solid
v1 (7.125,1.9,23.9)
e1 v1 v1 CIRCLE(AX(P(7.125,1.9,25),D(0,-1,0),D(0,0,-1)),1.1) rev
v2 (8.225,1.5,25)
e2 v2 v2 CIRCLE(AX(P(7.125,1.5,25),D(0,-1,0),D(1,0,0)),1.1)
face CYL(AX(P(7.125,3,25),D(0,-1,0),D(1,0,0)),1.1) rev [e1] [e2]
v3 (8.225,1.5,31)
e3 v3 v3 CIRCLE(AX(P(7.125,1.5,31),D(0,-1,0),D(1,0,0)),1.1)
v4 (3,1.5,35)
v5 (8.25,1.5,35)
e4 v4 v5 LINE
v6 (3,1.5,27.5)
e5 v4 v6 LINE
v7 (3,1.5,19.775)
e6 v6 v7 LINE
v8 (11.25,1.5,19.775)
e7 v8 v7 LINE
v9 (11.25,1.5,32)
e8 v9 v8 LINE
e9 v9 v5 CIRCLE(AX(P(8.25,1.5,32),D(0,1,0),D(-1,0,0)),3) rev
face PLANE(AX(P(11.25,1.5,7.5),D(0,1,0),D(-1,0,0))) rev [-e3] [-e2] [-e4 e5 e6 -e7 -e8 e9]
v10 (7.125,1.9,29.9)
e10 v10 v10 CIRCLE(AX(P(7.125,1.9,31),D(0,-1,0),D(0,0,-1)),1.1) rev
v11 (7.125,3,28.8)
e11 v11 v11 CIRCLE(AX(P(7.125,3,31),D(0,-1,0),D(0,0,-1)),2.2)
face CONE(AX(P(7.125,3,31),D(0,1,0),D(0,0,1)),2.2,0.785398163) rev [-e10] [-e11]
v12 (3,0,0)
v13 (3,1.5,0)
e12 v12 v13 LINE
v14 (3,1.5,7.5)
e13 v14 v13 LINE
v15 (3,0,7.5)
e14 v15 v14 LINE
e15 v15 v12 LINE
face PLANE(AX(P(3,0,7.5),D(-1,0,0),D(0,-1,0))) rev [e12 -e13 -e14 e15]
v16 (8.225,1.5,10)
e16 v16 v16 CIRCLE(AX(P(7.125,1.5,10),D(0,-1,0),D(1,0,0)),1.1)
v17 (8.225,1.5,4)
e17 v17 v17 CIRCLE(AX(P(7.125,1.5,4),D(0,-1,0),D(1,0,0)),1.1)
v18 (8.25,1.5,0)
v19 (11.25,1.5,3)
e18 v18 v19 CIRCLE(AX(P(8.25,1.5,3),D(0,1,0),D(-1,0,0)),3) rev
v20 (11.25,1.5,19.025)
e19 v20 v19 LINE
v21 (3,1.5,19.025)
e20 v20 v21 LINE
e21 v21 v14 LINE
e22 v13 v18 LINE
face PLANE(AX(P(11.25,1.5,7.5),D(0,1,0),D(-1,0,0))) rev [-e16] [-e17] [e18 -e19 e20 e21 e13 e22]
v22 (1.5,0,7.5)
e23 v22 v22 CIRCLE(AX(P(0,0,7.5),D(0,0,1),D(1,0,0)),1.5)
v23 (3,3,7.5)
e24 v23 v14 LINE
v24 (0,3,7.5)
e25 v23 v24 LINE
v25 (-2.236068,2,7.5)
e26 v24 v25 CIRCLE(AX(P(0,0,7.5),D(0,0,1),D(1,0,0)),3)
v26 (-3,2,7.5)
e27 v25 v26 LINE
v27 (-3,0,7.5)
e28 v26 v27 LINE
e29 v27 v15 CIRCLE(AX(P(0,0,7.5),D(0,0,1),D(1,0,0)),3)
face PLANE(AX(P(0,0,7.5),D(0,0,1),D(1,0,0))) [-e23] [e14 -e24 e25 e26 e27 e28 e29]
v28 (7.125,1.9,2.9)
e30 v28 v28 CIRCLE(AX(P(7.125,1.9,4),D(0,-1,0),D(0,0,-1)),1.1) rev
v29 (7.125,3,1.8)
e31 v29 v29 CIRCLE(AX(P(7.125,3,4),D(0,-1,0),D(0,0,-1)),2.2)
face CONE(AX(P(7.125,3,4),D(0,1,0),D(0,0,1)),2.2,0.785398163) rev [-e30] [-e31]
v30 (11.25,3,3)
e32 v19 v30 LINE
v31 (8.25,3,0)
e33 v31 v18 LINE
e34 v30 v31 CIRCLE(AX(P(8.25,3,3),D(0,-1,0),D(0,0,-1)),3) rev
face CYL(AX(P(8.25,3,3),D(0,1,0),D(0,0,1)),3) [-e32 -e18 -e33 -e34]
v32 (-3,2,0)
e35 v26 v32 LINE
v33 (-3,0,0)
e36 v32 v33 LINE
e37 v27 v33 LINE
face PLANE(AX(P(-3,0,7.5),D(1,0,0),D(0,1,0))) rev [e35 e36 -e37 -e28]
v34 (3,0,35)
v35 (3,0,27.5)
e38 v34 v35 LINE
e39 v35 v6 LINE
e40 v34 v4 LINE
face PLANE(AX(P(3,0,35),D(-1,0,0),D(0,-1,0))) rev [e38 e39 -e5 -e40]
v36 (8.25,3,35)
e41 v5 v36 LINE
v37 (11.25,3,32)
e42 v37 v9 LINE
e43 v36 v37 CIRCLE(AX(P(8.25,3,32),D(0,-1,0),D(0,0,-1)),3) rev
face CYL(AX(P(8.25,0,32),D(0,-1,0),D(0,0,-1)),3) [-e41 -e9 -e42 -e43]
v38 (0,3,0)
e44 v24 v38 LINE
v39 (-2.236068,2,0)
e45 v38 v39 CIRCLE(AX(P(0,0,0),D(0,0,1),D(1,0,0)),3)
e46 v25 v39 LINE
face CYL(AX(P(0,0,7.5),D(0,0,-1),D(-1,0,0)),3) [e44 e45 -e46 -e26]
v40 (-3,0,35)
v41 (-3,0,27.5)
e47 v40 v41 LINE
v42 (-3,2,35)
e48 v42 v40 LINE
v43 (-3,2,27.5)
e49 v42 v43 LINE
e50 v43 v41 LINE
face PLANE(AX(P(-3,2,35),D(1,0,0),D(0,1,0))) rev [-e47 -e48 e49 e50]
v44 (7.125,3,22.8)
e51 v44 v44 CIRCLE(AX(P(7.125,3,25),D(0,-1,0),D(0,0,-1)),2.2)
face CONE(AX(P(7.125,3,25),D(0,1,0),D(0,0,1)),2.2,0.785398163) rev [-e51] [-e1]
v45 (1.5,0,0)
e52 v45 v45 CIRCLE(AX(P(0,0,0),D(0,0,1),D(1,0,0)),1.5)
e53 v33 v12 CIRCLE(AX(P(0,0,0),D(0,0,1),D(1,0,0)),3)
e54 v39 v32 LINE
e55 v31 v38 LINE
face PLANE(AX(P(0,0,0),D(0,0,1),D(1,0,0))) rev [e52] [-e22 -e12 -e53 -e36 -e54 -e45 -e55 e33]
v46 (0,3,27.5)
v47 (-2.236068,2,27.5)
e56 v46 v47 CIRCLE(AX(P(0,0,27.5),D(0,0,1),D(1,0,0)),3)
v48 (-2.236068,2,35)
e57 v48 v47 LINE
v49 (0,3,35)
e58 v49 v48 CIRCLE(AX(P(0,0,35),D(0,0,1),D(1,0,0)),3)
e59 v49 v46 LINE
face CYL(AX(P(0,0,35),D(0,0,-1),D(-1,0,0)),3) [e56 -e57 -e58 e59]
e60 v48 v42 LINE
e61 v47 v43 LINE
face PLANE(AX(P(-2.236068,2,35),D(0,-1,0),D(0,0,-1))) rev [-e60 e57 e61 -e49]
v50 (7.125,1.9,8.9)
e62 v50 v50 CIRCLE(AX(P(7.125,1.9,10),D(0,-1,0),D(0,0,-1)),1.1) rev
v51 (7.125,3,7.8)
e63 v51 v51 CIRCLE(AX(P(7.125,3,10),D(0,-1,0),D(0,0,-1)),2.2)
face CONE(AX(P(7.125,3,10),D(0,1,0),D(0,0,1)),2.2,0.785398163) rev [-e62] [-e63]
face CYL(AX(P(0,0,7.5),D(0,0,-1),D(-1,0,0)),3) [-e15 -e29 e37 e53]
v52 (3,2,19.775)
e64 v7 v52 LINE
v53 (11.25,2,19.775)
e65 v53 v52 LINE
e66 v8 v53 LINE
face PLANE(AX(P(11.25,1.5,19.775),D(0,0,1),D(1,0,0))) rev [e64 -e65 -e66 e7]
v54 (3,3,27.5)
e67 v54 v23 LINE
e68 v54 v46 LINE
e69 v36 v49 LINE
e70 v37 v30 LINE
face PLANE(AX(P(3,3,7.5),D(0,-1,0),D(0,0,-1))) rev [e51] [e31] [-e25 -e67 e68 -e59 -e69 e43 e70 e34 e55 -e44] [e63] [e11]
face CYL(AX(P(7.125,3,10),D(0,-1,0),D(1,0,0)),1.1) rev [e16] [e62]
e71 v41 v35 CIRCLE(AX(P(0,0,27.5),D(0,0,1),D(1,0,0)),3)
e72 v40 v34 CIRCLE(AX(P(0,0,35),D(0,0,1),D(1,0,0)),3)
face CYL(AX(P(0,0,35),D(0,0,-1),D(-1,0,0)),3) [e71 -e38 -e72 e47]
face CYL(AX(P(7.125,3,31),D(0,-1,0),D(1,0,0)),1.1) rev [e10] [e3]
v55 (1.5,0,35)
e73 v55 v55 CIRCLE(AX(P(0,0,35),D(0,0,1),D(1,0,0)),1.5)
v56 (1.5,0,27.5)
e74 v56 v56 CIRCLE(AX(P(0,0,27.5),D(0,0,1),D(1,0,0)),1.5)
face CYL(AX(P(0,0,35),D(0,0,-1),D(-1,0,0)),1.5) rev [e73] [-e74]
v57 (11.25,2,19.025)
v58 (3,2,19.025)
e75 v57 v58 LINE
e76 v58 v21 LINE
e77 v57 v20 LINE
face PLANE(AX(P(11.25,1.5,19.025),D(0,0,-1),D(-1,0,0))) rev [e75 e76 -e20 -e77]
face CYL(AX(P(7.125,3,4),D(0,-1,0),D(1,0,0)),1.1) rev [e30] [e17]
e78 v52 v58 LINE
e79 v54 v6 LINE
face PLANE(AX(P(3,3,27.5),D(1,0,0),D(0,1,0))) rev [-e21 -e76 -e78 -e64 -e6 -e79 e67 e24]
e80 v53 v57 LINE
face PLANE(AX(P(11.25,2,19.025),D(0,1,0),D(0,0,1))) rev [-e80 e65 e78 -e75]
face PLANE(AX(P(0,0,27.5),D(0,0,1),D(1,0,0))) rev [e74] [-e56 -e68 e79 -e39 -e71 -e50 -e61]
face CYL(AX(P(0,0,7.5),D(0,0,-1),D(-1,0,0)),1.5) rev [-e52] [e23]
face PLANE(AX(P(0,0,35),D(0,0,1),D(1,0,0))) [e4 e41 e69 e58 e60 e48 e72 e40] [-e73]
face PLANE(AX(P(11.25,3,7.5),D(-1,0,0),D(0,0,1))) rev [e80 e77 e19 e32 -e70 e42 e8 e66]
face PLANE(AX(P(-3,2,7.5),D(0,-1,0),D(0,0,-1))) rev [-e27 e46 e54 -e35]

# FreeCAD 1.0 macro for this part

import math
import FreeCAD as App
import Part
import Sketcher


def edges_at(feature, points):
    """Names of the edges that pass closest to the given points."""
    edges = feature.Shape.Edges
    near = lambda p: min(range(len(edges)), key=lambda i: edges[i].distToShape(Part.Vertex(*p))[0])
    return sorted({f"Edge{near(p) + 1}" for p in points})


def add_polygon(sketch, points):
    """Adds a closed chain of lines whose ends are joined by coincident constraints."""
    first, n = sketch.GeometryCount, len(points)
    for a, b in zip(points, points[1:] + points[:1]):
        sketch.addGeometry(Part.LineSegment(App.Vector(*a, 0), App.Vector(*b, 0)), False)
    for i in range(n):
        sketch.addConstraint(Sketcher.Constraint("Coincident", first + i, 2, first + (i + 1) % n, 1))

doc = App.newDocument("Part")
body = doc.addObject("PartDesign::Body", "Body")

# Sketch on XY plane
sketch1 = body.newObject("Sketcher::SketchObject", "Sketch")
sketch1.AttachmentSupport = (doc.getObject("XY_Plane"), [""])
sketch1.MapMode = "FlatFace"
sketch1.addGeometry([
    Part.LineSegment(App.Vector(11.2, 1.5, 0), App.Vector(11.2, 3, 0)),  # 0
    Part.LineSegment(App.Vector(11.2, 3, 0), App.Vector(0, 3, 0)),  # 1
    Part.ArcOfCircle(Part.Circle(App.Vector(0, 0, 0), App.Vector(0, 0, 1), 3), math.radians(90), math.radians(138)),  # 2
    Part.LineSegment(App.Vector(-2.2, 2, 0), App.Vector(-3, 2, 0)),  # 3
    Part.LineSegment(App.Vector(-3, 2, 0), App.Vector(-3, 0, 0)),  # 4
    Part.ArcOfCircle(Part.Circle(App.Vector(0, 0, 0), App.Vector(0, 0, 1), 3), math.radians(180), math.radians(360)),  # 5
    Part.LineSegment(App.Vector(3, 0, 0), App.Vector(3, 1.5, 0)),  # 6
    Part.LineSegment(App.Vector(3, 1.5, 0), App.Vector(11.2, 1.5, 0)),  # 7
    Part.Circle(App.Vector(0, 0, 0), App.Vector(0, 0, 1), 1.5),  # 8
], False)
sketch1.addConstraint([
    Sketcher.Constraint("Coincident", 0, 2, 1, 1),
    Sketcher.Constraint("Tangent", 1, 2, 2, 1),
    Sketcher.Constraint("Coincident", 2, 2, 3, 1),
    Sketcher.Constraint("Coincident", 3, 2, 4, 1),
    Sketcher.Constraint("Tangent", 4, 2, 5, 1),
    Sketcher.Constraint("Tangent", 5, 2, 6, 1),
    Sketcher.Constraint("Coincident", 6, 2, 7, 1),
    Sketcher.Constraint("Coincident", 7, 2, 0, 1),
    Sketcher.Constraint("Vertical", 0),
    Sketcher.Constraint("Horizontal", 1),
    Sketcher.Constraint("Horizontal", 3),
    Sketcher.Constraint("Vertical", 4),
    Sketcher.Constraint("Vertical", 6),
    Sketcher.Constraint("Horizontal", 7),
    Sketcher.Constraint("Coincident", 2, 3, -1, 1),
    Sketcher.Constraint("Coincident", 5, 3, -1, 1),
    Sketcher.Constraint("Coincident", 8, 3, -1, 1),
    Sketcher.Constraint("Equal", 2, 5),
    Sketcher.Constraint("Equal", 0, 6),
    Sketcher.Constraint("Diameter", 8, 3.0),
    Sketcher.Constraint("Radius", 2, 3.0),
    Sketcher.Constraint("DistanceY", 4, 2, 4, 1, 2.0),
    Sketcher.Constraint("DistanceX", 1, 2, 1, 1, 11.25),
])
pad1 = body.newObject("PartDesign::Pad", "Pad")
pad1.Profile = sketch1
pad1.Length = 7.5

# Sketch on XY plane
sketch2 = body.newObject("Sketcher::SketchObject", "Sketch001")
sketch2.AttachmentSupport = (doc.getObject("XY_Plane"), [""])
sketch2.MapMode = "FlatFace"
sketch2.AttachmentOffset = App.Placement(App.Vector(0, 0, 7.5), App.Rotation())
add_polygon(sketch2, [(3, 3), (3, 1.5), (11.2, 1.5), (11.2, 3)])  # lines 0-3
sketch2.addConstraint([
    Sketcher.Constraint("Vertical", 0),
    Sketcher.Constraint("Horizontal", 1),
    Sketcher.Constraint("Vertical", 2),
    Sketcher.Constraint("Horizontal", 3),
    Sketcher.Constraint("DistanceY", 0, 2, 0, 1, 1.5),
    Sketcher.Constraint("DistanceX", -1, 1, 0, 2, 3.0),
    Sketcher.Constraint("DistanceY", -1, 1, 2, 2, 3.0),
    Sketcher.Constraint("DistanceX", 1, 1, 1, 2, 8.25),
])
pad2 = body.newObject("PartDesign::Pad", "Pad001")
pad2.Profile = sketch2
pad2.Length = 20

# Sketch on XY plane
sketch3 = body.newObject("Sketcher::SketchObject", "Sketch002")
sketch3.AttachmentSupport = (doc.getObject("XY_Plane"), [""])
sketch3.MapMode = "FlatFace"
sketch3.AttachmentOffset = App.Placement(App.Vector(0, 0, 27.5), App.Rotation())
sketch3.addGeometry([
    Part.LineSegment(App.Vector(11.2, 1.5, 0), App.Vector(11.2, 3, 0)),  # 0
    Part.LineSegment(App.Vector(11.2, 3, 0), App.Vector(0, 3, 0)),  # 1
    Part.ArcOfCircle(Part.Circle(App.Vector(0, 0, 0), App.Vector(0, 0, 1), 3), math.radians(90), math.radians(138)),  # 2
    Part.LineSegment(App.Vector(-2.2, 2, 0), App.Vector(-3, 2, 0)),  # 3
    Part.LineSegment(App.Vector(-3, 2, 0), App.Vector(-3, 0, 0)),  # 4
    Part.ArcOfCircle(Part.Circle(App.Vector(0, 0, 0), App.Vector(0, 0, 1), 3), math.radians(180), math.radians(360)),  # 5
    Part.LineSegment(App.Vector(3, 0, 0), App.Vector(3, 1.5, 0)),  # 6
    Part.LineSegment(App.Vector(3, 1.5, 0), App.Vector(11.2, 1.5, 0)),  # 7
    Part.Circle(App.Vector(0, 0, 0), App.Vector(0, 0, 1), 1.5),  # 8
], False)
sketch3.addConstraint([
    Sketcher.Constraint("Coincident", 0, 2, 1, 1),
    Sketcher.Constraint("Tangent", 1, 2, 2, 1),
    Sketcher.Constraint("Coincident", 2, 2, 3, 1),
    Sketcher.Constraint("Coincident", 3, 2, 4, 1),
    Sketcher.Constraint("Tangent", 4, 2, 5, 1),
    Sketcher.Constraint("Tangent", 5, 2, 6, 1),
    Sketcher.Constraint("Coincident", 6, 2, 7, 1),
    Sketcher.Constraint("Coincident", 7, 2, 0, 1),
    Sketcher.Constraint("Vertical", 0),
    Sketcher.Constraint("Horizontal", 1),
    Sketcher.Constraint("Horizontal", 3),
    Sketcher.Constraint("Vertical", 4),
    Sketcher.Constraint("Vertical", 6),
    Sketcher.Constraint("Horizontal", 7),
    Sketcher.Constraint("Coincident", 2, 3, -1, 1),
    Sketcher.Constraint("Coincident", 5, 3, -1, 1),
    Sketcher.Constraint("Coincident", 8, 3, -1, 1),
    Sketcher.Constraint("Equal", 2, 5),
    Sketcher.Constraint("Equal", 0, 6),
    Sketcher.Constraint("Diameter", 8, 3.0),
    Sketcher.Constraint("Radius", 2, 3.0),
    Sketcher.Constraint("DistanceY", 4, 2, 4, 1, 2.0),
    Sketcher.Constraint("DistanceX", 1, 2, 1, 1, 11.25),
])
pad3 = body.newObject("PartDesign::Pad", "Pad002")
pad3.Profile = sketch3
pad3.Length = 7.5

# Sketch on YZ plane
sketch4 = body.newObject("Sketcher::SketchObject", "Sketch003")
sketch4.AttachmentSupport = (doc.getObject("YZ_Plane"), [""])
sketch4.MapMode = "FlatFace"
sketch4.AttachmentOffset = App.Placement(App.Vector(0, 0, 3), App.Rotation())
add_polygon(sketch4, [(2, 19), (1.5, 19), (1.5, 19.8), (2, 19.8)])  # lines 0-3
sketch4.addConstraint([
    Sketcher.Constraint("Horizontal", 0),
    Sketcher.Constraint("Vertical", 1),
    Sketcher.Constraint("Horizontal", 2),
    Sketcher.Constraint("Vertical", 3),
    Sketcher.Constraint("DistanceX", 0, 2, 0, 1, 0.5),
    Sketcher.Constraint("DistanceX", -1, 1, 2, 2, 2.0),
    Sketcher.Constraint("DistanceY", 1, 1, 1, 2, 0.75),
    Sketcher.Constraint("DistanceY", -1, 1, 0, 2, 19.025),
])
pocket1 = body.newObject("PartDesign::Pocket", "Pocket")
pocket1.Profile = sketch4
pocket1.Type = "ThroughAll"
pocket1.Reversed = True

# Sketch on XZ plane
sketch5 = body.newObject("Sketcher::SketchObject", "Sketch004")
sketch5.AttachmentSupport = (doc.getObject("XZ_Plane"), [""])
sketch5.MapMode = "FlatFace"
sketch5.AttachmentOffset = App.Placement(App.Vector(0, 0, -1.5), App.Rotation())
sketch5.addGeometry([
    Part.Circle(App.Vector(7.1, 25, 0), App.Vector(0, 0, 1), 1.1),
    Part.Circle(App.Vector(7.1, 10, 0), App.Vector(0, 0, 1), 1.1),
    Part.Circle(App.Vector(7.1, 31, 0), App.Vector(0, 0, 1), 1.1),
    Part.Circle(App.Vector(7.1, 4, 0), App.Vector(0, 0, 1), 1.1),
], False)
sketch5.addConstraint([
    Sketcher.Constraint("Equal", 0, 1),
    Sketcher.Constraint("Equal", 1, 2),
    Sketcher.Constraint("Equal", 2, 3),
    Sketcher.Constraint("Vertical", 0, 3, 1, 3),
    Sketcher.Constraint("Vertical", 1, 3, 2, 3),
    Sketcher.Constraint("Vertical", 2, 3, 3, 3),
    Sketcher.Constraint("Diameter", 0, 2.2),
    Sketcher.Constraint("DistanceY", -1, 1, 0, 3, 25.0),
    Sketcher.Constraint("DistanceY", -1, 1, 1, 3, 10.0),
    Sketcher.Constraint("DistanceY", -1, 1, 2, 3, 31.0),
    Sketcher.Constraint("DistanceY", -1, 1, 3, 3, 4.0),
    Sketcher.Constraint("DistanceX", -1, 1, 0, 3, 7.125),
])
pocket2 = body.newObject("PartDesign::Pocket", "Pocket001")
pocket2.Profile = sketch5
pocket2.Type = "ThroughAll"
doc.recompute()

chamfer = body.newObject("PartDesign::Chamfer", "Chamfer")
chamfer.Base = (pocket2, edges_at(pocket2, [
    (6.025, 3, 4),
    (6.025, 3, 31),
    (6.025, 3, 10),
    (6.025, 3, 25),
]))
chamfer.Size = 1.1
doc.recompute()

fillet = body.newObject("PartDesign::Fillet", "Fillet")
fillet.Base = (chamfer, edges_at(chamfer, [(11.25, 2.25, 35), (11.25, 2.25, 0)]))
fillet.Radius = 3

doc.recompute()
